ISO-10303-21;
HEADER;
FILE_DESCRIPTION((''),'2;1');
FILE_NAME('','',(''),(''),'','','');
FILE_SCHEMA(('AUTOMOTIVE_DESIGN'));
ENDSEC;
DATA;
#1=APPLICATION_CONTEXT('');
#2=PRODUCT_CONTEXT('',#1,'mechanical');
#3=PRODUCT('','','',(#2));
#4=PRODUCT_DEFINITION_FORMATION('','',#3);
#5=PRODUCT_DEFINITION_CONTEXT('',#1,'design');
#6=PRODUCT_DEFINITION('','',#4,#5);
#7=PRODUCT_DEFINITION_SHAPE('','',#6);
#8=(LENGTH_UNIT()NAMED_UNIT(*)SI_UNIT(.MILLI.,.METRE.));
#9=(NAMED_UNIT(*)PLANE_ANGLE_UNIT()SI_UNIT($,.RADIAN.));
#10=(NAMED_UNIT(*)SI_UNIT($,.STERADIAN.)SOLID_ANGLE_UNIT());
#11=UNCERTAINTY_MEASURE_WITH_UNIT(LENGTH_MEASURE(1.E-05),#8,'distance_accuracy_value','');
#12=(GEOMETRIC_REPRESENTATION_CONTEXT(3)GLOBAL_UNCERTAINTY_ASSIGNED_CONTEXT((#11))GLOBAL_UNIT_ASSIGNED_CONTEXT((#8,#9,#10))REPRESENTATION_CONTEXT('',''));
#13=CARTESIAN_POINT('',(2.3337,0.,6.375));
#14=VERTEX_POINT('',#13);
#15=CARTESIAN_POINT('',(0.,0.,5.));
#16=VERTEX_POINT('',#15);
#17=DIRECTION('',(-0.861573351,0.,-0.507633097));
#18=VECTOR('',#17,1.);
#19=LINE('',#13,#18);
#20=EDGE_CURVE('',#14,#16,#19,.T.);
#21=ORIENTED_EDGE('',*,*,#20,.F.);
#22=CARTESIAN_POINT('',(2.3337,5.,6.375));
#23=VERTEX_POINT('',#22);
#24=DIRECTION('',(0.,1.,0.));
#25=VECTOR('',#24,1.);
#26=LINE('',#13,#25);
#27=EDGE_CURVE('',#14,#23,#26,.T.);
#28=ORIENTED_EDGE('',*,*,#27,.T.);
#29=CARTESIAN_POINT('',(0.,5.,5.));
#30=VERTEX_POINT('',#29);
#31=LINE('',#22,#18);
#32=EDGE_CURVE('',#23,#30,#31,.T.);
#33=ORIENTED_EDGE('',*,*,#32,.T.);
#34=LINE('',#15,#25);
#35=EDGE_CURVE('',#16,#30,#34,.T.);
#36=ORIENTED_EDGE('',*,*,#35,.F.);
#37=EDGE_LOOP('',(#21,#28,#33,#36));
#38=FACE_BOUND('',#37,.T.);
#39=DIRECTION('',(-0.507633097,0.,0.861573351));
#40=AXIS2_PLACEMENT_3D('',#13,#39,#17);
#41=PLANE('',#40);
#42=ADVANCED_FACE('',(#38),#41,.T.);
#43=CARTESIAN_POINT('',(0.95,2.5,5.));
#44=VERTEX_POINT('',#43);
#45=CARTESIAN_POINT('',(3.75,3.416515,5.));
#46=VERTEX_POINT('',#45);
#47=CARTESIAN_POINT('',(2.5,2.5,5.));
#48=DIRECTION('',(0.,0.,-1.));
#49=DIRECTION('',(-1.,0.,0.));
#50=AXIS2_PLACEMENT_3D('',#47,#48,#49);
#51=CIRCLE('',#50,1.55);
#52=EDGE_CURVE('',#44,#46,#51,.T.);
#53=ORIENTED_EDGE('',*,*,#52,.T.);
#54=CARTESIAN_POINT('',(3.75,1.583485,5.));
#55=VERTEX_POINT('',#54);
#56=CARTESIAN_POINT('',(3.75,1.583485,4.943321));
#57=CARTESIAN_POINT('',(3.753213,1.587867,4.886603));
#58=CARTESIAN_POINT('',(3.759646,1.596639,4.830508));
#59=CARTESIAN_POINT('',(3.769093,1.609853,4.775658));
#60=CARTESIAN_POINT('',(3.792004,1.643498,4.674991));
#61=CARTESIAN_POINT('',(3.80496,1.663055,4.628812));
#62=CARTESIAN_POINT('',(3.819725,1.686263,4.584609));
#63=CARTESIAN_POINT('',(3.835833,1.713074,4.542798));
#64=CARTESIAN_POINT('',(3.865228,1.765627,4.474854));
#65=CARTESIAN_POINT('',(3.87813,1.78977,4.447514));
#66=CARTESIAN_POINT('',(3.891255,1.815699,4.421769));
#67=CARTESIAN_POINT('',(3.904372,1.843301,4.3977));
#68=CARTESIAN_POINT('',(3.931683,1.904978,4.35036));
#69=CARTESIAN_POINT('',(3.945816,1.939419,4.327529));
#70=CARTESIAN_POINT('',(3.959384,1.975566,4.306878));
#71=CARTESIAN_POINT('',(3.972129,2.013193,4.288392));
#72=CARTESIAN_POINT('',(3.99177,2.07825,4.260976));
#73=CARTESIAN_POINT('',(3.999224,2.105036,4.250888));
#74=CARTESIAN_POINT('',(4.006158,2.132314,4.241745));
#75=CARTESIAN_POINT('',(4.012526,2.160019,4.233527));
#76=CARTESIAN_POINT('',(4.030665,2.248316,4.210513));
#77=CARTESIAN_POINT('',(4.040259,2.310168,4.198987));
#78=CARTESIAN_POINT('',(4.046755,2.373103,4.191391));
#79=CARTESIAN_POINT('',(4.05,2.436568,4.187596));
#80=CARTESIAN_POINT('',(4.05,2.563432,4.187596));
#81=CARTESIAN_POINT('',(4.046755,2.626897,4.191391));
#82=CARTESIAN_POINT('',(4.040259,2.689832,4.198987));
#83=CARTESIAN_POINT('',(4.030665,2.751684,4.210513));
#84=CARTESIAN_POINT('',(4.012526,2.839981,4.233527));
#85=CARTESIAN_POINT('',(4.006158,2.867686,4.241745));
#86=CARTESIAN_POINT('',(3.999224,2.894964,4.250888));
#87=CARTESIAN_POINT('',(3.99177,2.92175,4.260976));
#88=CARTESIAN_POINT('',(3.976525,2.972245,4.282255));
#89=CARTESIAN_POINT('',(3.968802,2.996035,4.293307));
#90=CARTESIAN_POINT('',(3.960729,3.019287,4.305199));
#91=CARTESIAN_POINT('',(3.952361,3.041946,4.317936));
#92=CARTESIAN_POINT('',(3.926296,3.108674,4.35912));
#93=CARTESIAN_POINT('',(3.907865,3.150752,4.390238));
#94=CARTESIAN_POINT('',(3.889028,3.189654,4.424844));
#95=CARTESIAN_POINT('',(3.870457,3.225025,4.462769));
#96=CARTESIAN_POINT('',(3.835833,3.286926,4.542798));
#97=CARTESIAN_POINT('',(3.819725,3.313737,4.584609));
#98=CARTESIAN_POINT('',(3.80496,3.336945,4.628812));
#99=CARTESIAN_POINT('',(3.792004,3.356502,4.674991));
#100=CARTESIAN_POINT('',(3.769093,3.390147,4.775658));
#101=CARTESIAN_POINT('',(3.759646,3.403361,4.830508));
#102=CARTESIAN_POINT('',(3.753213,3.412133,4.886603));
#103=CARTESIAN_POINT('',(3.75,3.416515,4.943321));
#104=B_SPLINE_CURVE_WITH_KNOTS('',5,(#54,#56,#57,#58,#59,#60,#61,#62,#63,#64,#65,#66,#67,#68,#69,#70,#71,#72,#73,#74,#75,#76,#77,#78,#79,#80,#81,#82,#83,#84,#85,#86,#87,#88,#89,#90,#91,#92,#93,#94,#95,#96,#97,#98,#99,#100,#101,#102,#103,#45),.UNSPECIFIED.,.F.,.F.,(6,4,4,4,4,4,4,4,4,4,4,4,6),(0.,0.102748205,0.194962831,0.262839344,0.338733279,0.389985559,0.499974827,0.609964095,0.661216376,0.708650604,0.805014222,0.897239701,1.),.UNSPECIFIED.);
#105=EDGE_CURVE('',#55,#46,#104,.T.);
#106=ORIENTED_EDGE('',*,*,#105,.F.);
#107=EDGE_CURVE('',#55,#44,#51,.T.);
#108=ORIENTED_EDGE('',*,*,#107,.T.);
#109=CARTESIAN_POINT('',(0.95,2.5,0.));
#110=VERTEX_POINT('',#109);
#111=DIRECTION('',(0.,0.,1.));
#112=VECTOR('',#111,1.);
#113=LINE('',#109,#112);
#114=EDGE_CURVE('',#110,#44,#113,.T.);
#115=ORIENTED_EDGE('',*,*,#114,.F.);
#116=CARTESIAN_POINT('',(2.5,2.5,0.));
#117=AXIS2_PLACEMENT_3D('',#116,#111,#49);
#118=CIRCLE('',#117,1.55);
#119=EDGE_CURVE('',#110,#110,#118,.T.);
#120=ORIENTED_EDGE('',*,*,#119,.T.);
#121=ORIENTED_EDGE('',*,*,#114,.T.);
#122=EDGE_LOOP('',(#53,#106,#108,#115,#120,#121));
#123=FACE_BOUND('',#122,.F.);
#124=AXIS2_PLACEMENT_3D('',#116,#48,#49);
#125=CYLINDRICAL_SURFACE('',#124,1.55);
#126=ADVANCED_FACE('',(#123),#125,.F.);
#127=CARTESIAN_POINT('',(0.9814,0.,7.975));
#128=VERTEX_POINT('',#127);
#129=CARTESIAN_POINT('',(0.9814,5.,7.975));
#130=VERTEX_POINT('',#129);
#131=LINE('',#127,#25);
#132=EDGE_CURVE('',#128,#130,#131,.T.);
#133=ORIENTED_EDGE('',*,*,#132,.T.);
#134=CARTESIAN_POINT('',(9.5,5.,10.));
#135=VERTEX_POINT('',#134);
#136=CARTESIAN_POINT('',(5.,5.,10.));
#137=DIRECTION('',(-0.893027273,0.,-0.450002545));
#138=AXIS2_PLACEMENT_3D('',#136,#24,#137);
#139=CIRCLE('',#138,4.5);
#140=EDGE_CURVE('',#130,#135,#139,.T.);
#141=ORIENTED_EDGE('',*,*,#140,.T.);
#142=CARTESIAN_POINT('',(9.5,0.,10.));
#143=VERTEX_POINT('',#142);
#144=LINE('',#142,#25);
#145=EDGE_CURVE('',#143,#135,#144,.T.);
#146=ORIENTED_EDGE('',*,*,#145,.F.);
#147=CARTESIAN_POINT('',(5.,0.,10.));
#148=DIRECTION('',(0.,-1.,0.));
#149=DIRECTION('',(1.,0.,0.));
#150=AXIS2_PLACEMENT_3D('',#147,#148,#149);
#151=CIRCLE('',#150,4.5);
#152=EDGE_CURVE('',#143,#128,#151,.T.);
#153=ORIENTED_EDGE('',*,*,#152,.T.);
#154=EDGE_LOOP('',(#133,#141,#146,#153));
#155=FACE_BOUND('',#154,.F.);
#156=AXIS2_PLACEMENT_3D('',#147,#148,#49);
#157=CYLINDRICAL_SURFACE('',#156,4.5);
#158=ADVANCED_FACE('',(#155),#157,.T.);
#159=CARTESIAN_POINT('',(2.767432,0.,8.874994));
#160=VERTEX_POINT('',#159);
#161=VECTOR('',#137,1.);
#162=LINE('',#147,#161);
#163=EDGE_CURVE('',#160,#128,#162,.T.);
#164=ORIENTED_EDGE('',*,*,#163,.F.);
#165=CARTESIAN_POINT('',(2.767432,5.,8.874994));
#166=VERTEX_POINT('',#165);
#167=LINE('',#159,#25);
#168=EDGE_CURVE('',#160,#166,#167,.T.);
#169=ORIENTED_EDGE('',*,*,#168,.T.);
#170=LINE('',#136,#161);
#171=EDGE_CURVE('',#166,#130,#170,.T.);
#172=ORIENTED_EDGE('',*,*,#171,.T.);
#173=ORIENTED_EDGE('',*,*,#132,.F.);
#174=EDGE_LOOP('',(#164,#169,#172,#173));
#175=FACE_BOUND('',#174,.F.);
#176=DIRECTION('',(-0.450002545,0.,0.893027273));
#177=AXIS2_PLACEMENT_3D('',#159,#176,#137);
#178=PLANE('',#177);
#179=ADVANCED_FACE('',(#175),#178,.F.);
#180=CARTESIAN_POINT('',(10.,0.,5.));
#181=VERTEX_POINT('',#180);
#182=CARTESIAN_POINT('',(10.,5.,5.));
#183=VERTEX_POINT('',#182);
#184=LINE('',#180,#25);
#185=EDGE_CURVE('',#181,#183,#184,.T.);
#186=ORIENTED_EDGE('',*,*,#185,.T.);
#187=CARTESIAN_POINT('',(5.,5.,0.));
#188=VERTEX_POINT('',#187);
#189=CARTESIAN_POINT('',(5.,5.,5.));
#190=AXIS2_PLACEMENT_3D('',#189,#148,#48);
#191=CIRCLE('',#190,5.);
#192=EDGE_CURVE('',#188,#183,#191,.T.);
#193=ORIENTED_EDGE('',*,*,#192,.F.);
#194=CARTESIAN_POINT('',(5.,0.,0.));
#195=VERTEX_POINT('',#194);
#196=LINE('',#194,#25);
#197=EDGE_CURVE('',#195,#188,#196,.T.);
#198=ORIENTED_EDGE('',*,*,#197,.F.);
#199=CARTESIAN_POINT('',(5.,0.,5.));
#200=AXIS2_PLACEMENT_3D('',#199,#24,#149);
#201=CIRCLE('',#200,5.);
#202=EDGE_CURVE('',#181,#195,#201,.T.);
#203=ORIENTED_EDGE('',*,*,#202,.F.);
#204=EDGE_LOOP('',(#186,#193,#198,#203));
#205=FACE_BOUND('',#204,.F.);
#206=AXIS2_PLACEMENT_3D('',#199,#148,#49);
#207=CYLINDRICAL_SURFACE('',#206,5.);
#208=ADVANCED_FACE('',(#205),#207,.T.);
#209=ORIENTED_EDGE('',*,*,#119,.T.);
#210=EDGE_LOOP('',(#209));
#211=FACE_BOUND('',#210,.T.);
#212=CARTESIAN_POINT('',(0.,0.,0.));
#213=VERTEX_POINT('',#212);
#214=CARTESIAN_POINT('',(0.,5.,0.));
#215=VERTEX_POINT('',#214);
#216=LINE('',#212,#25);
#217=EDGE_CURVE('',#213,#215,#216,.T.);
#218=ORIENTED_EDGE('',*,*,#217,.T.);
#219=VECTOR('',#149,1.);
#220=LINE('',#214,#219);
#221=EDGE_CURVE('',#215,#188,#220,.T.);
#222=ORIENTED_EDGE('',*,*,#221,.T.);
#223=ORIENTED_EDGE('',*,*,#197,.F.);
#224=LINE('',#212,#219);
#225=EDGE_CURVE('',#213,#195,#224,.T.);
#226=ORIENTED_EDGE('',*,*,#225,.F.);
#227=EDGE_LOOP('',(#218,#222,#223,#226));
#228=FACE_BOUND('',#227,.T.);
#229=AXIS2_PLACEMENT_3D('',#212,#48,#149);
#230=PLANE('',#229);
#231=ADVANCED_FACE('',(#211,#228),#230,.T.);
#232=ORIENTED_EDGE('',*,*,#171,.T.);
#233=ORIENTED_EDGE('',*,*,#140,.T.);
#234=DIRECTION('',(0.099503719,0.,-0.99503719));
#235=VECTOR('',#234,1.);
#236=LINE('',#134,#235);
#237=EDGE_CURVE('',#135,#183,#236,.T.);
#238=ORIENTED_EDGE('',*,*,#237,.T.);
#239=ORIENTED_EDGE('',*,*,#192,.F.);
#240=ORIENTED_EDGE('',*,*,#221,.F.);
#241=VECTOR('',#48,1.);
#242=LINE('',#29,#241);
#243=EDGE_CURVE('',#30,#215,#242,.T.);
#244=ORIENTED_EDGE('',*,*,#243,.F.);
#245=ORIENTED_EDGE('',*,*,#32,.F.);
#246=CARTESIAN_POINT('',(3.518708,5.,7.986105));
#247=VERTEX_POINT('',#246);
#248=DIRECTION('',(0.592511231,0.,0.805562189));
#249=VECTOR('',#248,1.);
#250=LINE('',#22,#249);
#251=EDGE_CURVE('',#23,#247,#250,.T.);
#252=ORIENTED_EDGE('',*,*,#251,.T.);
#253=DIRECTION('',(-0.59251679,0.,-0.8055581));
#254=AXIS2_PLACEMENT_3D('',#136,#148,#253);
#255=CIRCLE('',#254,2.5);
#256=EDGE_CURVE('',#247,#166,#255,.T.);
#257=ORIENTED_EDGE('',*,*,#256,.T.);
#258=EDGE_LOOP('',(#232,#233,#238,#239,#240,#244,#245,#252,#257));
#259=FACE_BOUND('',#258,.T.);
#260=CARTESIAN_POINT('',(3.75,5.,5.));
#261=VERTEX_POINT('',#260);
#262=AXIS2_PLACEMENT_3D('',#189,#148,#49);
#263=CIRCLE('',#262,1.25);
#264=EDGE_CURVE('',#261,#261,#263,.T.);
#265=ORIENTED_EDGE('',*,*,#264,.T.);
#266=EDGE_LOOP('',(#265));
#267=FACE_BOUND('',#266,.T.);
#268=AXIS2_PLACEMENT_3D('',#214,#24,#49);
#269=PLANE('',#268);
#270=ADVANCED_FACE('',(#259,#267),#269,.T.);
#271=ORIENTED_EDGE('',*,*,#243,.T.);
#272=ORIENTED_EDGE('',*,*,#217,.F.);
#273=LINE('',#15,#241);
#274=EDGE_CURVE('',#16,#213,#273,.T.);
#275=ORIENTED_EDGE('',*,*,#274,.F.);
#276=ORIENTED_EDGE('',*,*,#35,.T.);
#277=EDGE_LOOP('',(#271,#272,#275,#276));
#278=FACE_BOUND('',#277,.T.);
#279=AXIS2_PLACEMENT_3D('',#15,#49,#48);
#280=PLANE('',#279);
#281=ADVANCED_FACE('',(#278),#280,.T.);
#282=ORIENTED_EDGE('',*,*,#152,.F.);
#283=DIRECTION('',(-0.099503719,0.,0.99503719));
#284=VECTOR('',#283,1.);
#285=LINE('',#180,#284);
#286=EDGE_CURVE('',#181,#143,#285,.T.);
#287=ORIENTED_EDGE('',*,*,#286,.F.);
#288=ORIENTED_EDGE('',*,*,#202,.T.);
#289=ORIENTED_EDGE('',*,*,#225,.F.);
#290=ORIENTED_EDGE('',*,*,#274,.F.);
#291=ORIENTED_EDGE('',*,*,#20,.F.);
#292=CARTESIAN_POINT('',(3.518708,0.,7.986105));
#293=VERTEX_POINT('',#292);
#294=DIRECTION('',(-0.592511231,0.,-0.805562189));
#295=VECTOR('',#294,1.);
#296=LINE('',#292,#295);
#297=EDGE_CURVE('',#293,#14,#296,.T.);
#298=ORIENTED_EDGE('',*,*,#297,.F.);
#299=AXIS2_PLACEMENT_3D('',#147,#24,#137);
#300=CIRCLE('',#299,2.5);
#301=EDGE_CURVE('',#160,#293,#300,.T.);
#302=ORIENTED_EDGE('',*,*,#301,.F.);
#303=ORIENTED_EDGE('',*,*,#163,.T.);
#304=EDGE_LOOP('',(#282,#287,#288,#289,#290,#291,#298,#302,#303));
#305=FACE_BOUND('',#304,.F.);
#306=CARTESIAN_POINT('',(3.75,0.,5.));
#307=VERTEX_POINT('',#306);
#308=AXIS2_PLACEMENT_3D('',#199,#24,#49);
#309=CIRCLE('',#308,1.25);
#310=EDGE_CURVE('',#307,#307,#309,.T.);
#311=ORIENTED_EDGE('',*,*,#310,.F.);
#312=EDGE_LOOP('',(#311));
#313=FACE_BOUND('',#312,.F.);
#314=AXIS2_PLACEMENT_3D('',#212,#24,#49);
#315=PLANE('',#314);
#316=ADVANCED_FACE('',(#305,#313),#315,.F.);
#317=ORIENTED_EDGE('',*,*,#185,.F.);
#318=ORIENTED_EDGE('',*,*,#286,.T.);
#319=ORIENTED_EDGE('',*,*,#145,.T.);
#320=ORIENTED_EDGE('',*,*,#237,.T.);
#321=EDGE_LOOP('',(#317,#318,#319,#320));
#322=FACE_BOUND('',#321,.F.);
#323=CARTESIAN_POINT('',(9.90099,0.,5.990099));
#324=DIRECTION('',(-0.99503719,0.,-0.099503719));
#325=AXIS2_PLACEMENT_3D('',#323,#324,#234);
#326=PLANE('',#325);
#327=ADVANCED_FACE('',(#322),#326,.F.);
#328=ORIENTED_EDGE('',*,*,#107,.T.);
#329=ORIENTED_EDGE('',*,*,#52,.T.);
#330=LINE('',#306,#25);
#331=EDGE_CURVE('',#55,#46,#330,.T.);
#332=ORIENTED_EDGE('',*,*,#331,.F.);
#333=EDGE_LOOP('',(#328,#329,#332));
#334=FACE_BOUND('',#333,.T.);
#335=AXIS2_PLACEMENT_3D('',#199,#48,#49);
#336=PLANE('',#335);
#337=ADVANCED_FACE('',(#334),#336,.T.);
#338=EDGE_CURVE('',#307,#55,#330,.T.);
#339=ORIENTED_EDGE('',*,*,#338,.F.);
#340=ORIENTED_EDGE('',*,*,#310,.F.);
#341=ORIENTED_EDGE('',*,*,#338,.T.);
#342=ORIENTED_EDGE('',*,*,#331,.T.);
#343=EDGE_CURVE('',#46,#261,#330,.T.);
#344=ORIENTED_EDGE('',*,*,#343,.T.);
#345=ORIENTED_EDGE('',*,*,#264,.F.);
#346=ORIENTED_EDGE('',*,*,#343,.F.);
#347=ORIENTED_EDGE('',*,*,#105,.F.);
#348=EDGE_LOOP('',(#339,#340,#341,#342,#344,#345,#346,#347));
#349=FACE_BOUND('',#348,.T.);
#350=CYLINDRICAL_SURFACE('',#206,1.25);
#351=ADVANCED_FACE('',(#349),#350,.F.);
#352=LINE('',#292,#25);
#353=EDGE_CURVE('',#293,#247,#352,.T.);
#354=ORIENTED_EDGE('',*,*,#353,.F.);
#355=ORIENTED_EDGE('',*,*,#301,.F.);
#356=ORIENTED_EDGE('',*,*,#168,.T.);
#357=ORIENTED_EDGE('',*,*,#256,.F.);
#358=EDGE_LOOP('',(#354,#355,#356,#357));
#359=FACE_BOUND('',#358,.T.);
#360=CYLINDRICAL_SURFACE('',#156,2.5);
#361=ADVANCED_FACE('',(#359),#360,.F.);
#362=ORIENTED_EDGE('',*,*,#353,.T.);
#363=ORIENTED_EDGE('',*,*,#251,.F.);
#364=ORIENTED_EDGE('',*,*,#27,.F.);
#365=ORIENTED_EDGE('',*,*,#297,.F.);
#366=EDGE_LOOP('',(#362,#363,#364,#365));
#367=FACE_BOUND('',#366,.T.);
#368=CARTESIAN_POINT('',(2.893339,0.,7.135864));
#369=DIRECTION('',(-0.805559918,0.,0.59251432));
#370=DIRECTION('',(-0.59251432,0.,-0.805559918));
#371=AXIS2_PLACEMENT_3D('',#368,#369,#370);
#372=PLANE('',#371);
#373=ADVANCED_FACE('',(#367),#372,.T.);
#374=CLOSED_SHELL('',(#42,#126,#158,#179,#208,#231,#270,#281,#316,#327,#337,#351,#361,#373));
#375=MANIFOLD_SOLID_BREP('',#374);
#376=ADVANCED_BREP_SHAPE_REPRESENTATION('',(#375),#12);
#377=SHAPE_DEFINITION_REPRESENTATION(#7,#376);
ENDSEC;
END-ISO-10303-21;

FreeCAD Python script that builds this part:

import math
import FreeCAD as App
import Part
import Sketcher
from FreeCAD import Vector

doc = App.newDocument("Part")
params = doc.addObject("Spreadsheet::Sheet", "Params")
for row, (alias, value) in enumerate([
    ("sketch1_radius", "5 mm"),
    ("sketch1_diameter", "2.5 mm"),
    ("sketch1_radius2", "2.5 mm"),
    ("sketch1_radius3", "4.5 mm"),
    ("pad1_length", "5 mm"),
    ("sketch2_diameter", "3.1 mm"),
    ("pocket1_length", "5 mm"),
], start=1):
    params.set(f"A{row}", alias)
    params.set(f"B{row}", "=" + value)
    params.setAlias(f"B{row}", alias)

body = doc.addObject("PartDesign::Body", "Body")

# Sketch on XZ plane
sketch1 = body.newObject("Sketcher::SketchObject", "Sketch")
sketch1.AttachmentSupport = (doc.getObject("XZ_Plane"), [""])
sketch1.MapMode = "FlatFace"
sketch1.addGeometry([
    Part.LineSegment(Vector(5, 0, 0), Vector(0, 0, 0)),  # 0
    Part.LineSegment(Vector(0, 0, 0), Vector(0, 5, 0)),  # 1
    Part.LineSegment(Vector(0, 5, 0), Vector(2.3337, 6.375, 0)),  # 2
    Part.LineSegment(Vector(2.3337, 6.375, 0), Vector(3.518708, 7.986105, 0)),  # 3
    Part.ArcOfCircle(Part.Circle(Vector(5, 10, 0), Vector(0, 0, 1), 2.5), math.radians(-126.335811), math.radians(206.743847)),  # 4
    Part.LineSegment(Vector(2.767432, 8.874994, 0), Vector(0.9814, 7.975, 0)),  # 5
    Part.ArcOfCircle(Part.Circle(Vector(5, 10, 0), Vector(0, 0, 1), 4.5), math.radians(0), math.radians(206.743847)),  # 6
    Part.LineSegment(Vector(9.5, 10, 0), Vector(10, 5, 0)),  # 7
    Part.ArcOfCircle(Part.Circle(Vector(5, 5, 0), Vector(0, 0, 1), 5), math.radians(-90), math.radians(0)),  # 8
    Part.Circle(Vector(5, 5, 0), Vector(0, 0, 1), 1.25),  # 9
], False)
sketch1.addConstraint([
    Sketcher.Constraint("Coincident", 0, 2, 1, 1),
    Sketcher.Constraint("Coincident", 1, 2, 2, 1),
    Sketcher.Constraint("Coincident", 2, 2, 3, 1),
    Sketcher.Constraint("Coincident", 3, 2, 4, 1),
    Sketcher.Constraint("Coincident", 4, 2, 5, 1),
    Sketcher.Constraint("Coincident", 5, 2, 6, 2),
    Sketcher.Constraint("Coincident", 6, 1, 7, 1),
    Sketcher.Constraint("Coincident", 7, 2, 8, 2),
    Sketcher.Constraint("Tangent", 8, 1, 0, 1),
    Sketcher.Constraint("Horizontal", 0),
    Sketcher.Constraint("Vertical", 1),
    Sketcher.Constraint("Coincident", 0, 2, -1, 1),
    Sketcher.Constraint("Coincident", 6, 3, 4, 3),
    Sketcher.Constraint("Coincident", 9, 3, 8, 3),
    Sketcher.Constraint("Horizontal", 9, 3, 1, 2),
    Sketcher.Constraint("Horizontal", 4, 3, 6, 1),
    Sketcher.Constraint("Horizontal", 1, 2, 7, 2),
    Sketcher.Constraint("Vertical", 6, 3, 8, 3),
    Sketcher.Constraint("Equal", 0, 1),
    Sketcher.Constraint("Equal", 3, 5),
    Sketcher.Constraint("Radius", 8, 5.0),
    Sketcher.Constraint("Diameter", 9, 2.5),
    Sketcher.Constraint("Radius", 4, 2.5),
    Sketcher.Constraint("Radius", 6, 4.5),
    Sketcher.Constraint("DistanceY", 8, 3, 4, 3, 5.0),
    Sketcher.Constraint("DistanceY", 2, 2, 4, 2, 2.5),
    Sketcher.Constraint("DistanceY", 5, 2, 4, 2, 0.9),
    Sketcher.Constraint("DistanceY", -1, 1, 2, 2, 6.375),
    Sketcher.Constraint("DistanceY", -1, 1, 3, 2, 7.986),
])
sketch1.setExpression("Constraints[20]", "Params.sketch1_radius")
sketch1.setExpression("Constraints[21]", "Params.sketch1_diameter")
sketch1.setExpression("Constraints[22]", "Params.sketch1_radius2")
sketch1.setExpression("Constraints[23]", "Params.sketch1_radius3")
pad1 = body.newObject("PartDesign::Pad", "Pad")
pad1.Profile = sketch1
pad1.setExpression("Length", "Params.pad1_length")
pad1.Reversed = True

# Sketch on XY plane
sketch2 = body.newObject("Sketcher::SketchObject", "Sketch001")
sketch2.AttachmentSupport = (doc.getObject("XY_Plane"), [""])
sketch2.MapMode = "FlatFace"
sketch2.addGeometry(Part.Circle(Vector(2.5, 2.5, 0), Vector(0, 0, 1), 1.55), False)
sketch2.addConstraint([
    Sketcher.Constraint("Diameter", 0, 3.1),
    Sketcher.Constraint("DistanceX", -1, 1, 0, 3, 2.5),
    Sketcher.Constraint("DistanceY", -1, 1, 0, 3, 2.5),
])
sketch2.setExpression("Constraints[0]", "Params.sketch2_diameter")
pocket1 = body.newObject("PartDesign::Pocket", "Pocket")
pocket1.Profile = sketch2
pocket1.setExpression("Length", "Params.pocket1_length")
pocket1.Reversed = True

doc.recompute()
